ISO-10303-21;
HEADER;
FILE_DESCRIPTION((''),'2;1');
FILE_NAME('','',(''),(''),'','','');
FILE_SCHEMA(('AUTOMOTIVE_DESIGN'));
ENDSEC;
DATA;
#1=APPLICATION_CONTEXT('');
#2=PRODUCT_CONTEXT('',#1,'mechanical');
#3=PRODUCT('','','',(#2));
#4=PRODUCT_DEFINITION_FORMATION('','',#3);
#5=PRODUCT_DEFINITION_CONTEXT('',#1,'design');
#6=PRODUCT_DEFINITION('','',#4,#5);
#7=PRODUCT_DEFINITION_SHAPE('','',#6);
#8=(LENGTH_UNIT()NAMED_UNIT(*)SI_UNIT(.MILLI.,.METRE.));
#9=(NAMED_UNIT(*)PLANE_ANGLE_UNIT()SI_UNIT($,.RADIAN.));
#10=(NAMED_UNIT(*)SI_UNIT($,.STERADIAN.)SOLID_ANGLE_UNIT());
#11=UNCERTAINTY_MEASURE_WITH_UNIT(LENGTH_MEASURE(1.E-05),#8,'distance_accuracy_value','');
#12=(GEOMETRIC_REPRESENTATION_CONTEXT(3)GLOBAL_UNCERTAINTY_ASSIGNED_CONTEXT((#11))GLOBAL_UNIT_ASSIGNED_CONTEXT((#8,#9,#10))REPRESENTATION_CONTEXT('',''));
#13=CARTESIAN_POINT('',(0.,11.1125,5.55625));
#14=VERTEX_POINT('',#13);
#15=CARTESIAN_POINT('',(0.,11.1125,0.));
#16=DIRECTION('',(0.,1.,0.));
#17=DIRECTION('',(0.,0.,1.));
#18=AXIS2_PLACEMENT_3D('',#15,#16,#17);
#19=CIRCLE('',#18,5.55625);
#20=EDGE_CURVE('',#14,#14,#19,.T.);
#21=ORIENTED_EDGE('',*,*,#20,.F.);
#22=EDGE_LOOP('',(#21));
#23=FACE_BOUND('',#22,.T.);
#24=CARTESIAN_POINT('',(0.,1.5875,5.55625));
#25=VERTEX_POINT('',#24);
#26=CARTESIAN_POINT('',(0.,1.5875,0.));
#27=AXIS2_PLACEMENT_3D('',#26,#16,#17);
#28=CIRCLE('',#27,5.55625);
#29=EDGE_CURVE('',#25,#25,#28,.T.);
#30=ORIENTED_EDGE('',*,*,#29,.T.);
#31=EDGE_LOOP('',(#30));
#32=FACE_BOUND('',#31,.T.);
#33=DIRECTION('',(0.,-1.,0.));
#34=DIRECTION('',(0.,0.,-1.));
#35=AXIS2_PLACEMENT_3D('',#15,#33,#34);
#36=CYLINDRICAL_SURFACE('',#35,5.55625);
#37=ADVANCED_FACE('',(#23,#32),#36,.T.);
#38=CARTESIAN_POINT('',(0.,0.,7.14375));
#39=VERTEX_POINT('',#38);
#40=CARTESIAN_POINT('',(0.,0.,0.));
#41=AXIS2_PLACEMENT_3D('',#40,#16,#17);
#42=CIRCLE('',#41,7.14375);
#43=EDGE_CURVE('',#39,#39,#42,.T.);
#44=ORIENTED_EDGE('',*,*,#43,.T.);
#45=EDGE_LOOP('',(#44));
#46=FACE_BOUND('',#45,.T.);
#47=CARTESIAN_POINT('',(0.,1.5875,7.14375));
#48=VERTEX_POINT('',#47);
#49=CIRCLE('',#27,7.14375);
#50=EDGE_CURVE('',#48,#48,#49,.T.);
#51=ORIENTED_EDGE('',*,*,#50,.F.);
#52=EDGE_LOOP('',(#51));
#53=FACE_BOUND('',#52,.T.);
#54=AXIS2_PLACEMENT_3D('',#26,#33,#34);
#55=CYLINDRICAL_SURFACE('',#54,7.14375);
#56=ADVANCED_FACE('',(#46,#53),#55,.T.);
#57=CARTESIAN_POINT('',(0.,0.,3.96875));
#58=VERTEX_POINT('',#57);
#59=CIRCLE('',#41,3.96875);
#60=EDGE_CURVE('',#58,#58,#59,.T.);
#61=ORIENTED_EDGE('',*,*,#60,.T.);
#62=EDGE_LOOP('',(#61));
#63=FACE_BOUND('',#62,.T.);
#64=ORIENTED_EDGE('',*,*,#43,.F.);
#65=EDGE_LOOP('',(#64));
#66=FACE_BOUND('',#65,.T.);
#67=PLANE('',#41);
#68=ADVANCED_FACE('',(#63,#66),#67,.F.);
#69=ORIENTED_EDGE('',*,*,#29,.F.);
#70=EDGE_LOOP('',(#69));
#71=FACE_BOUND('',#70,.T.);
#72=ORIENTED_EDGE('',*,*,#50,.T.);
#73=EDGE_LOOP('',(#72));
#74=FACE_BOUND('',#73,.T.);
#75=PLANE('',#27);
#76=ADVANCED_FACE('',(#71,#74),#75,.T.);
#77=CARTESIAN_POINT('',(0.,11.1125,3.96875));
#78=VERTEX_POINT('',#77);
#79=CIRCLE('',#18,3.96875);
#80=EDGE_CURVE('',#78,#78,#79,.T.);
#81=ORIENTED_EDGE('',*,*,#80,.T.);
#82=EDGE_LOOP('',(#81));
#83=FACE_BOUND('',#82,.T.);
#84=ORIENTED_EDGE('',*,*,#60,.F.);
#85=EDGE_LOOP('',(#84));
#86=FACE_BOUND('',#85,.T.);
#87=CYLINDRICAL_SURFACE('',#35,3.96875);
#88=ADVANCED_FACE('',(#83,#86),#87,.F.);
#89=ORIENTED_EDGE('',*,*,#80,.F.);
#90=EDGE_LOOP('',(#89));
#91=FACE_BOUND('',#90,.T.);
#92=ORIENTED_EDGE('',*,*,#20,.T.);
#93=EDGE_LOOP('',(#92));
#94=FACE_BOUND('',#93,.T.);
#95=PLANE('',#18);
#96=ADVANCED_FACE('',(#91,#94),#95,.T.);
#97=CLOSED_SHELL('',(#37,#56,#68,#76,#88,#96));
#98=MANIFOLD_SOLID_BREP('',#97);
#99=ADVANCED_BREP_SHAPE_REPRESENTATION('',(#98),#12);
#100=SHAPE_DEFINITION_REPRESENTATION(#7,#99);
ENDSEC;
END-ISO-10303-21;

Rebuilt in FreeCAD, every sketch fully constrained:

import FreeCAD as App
import Part
import Sketcher

V = App.Vector
Q = App.Units.Quantity

doc = App.newDocument("Part")
params = doc.addObject("Spreadsheet::Sheet", "Params")
for row, (alias, value) in enumerate([
    ("sketch1_diameter", "0.4375 in"),
    ("sketch1_diameter2", "0.3125 in"),
    ("pad1_length", "0.4375 in"),
    ("sketch2_diameter", "0.5625 in"),
    ("sketch2_diameter2", "0.4375 in"),
    ("pad2_length", "0.0625 in"),
], start=1):
    params.set(f"A{row}", alias)
    params.set(f"B{row}", "=" + value)
    params.setAlias(f"B{row}", alias)

body = doc.addObject("PartDesign::Body", "Body")

# Sketch on XZ plane
sketch1 = body.newObject("Sketcher::SketchObject", "Sketch")
sketch1.AttachmentSupport = (doc.getObject("XZ_Plane"), [""])
sketch1.MapMode = "FlatFace"
sketch1.addGeometry(Part.Circle(V(0, 0, 0), V(0, 0, 1), 5.6), False)
sketch1.addGeometry(Part.Circle(V(0, 0, 0), V(0, 0, 1), 4), False)
sketch1.addConstraint(Sketcher.Constraint("Coincident", 0, 3, -1, 1))
sketch1.addConstraint(Sketcher.Constraint("Coincident", 1, 3, -1, 1))
sketch1.addConstraint(Sketcher.Constraint("Diameter", 0, Q("0.4375 in")))
sketch1.addConstraint(Sketcher.Constraint("Diameter", 1, Q("0.3125 in")))
sketch1.setExpression("Constraints[2]", "Params.sketch1_diameter")
sketch1.setExpression("Constraints[3]", "Params.sketch1_diameter2")
pad1 = body.newObject("PartDesign::Pad", "Pad")
pad1.Profile = sketch1
pad1.setExpression("Length", "Params.pad1_length")
pad1.Reversed = True

# Sketch on XZ plane
sketch2 = body.newObject("Sketcher::SketchObject", "Sketch001")
sketch2.AttachmentSupport = (doc.getObject("XZ_Plane"), [""])
sketch2.MapMode = "FlatFace"
sketch2.addGeometry(Part.Circle(V(0, 0, 0), V(0, 0, 1), 7), False)
sketch2.addGeometry(Part.Circle(V(0, 0, 0), V(0, 0, 1), 6), False)
sketch2.addConstraint(Sketcher.Constraint("Coincident", 0, 3, -1, 1))
sketch2.addConstraint(Sketcher.Constraint("Coincident", 1, 3, -1, 1))
sketch2.addConstraint(Sketcher.Constraint("Diameter", 0, Q("0.5625 in")))
sketch2.addConstraint(Sketcher.Constraint("Diameter", 1, Q("0.4375 in")))
sketch2.setExpression("Constraints[2]", "Params.sketch2_diameter")
sketch2.setExpression("Constraints[3]", "Params.sketch2_diameter2")
pad2 = body.newObject("PartDesign::Pad", "Pad001")
pad2.Profile = sketch2
pad2.setExpression("Length", "Params.pad2_length")
pad2.Reversed = True

doc.recompute()
